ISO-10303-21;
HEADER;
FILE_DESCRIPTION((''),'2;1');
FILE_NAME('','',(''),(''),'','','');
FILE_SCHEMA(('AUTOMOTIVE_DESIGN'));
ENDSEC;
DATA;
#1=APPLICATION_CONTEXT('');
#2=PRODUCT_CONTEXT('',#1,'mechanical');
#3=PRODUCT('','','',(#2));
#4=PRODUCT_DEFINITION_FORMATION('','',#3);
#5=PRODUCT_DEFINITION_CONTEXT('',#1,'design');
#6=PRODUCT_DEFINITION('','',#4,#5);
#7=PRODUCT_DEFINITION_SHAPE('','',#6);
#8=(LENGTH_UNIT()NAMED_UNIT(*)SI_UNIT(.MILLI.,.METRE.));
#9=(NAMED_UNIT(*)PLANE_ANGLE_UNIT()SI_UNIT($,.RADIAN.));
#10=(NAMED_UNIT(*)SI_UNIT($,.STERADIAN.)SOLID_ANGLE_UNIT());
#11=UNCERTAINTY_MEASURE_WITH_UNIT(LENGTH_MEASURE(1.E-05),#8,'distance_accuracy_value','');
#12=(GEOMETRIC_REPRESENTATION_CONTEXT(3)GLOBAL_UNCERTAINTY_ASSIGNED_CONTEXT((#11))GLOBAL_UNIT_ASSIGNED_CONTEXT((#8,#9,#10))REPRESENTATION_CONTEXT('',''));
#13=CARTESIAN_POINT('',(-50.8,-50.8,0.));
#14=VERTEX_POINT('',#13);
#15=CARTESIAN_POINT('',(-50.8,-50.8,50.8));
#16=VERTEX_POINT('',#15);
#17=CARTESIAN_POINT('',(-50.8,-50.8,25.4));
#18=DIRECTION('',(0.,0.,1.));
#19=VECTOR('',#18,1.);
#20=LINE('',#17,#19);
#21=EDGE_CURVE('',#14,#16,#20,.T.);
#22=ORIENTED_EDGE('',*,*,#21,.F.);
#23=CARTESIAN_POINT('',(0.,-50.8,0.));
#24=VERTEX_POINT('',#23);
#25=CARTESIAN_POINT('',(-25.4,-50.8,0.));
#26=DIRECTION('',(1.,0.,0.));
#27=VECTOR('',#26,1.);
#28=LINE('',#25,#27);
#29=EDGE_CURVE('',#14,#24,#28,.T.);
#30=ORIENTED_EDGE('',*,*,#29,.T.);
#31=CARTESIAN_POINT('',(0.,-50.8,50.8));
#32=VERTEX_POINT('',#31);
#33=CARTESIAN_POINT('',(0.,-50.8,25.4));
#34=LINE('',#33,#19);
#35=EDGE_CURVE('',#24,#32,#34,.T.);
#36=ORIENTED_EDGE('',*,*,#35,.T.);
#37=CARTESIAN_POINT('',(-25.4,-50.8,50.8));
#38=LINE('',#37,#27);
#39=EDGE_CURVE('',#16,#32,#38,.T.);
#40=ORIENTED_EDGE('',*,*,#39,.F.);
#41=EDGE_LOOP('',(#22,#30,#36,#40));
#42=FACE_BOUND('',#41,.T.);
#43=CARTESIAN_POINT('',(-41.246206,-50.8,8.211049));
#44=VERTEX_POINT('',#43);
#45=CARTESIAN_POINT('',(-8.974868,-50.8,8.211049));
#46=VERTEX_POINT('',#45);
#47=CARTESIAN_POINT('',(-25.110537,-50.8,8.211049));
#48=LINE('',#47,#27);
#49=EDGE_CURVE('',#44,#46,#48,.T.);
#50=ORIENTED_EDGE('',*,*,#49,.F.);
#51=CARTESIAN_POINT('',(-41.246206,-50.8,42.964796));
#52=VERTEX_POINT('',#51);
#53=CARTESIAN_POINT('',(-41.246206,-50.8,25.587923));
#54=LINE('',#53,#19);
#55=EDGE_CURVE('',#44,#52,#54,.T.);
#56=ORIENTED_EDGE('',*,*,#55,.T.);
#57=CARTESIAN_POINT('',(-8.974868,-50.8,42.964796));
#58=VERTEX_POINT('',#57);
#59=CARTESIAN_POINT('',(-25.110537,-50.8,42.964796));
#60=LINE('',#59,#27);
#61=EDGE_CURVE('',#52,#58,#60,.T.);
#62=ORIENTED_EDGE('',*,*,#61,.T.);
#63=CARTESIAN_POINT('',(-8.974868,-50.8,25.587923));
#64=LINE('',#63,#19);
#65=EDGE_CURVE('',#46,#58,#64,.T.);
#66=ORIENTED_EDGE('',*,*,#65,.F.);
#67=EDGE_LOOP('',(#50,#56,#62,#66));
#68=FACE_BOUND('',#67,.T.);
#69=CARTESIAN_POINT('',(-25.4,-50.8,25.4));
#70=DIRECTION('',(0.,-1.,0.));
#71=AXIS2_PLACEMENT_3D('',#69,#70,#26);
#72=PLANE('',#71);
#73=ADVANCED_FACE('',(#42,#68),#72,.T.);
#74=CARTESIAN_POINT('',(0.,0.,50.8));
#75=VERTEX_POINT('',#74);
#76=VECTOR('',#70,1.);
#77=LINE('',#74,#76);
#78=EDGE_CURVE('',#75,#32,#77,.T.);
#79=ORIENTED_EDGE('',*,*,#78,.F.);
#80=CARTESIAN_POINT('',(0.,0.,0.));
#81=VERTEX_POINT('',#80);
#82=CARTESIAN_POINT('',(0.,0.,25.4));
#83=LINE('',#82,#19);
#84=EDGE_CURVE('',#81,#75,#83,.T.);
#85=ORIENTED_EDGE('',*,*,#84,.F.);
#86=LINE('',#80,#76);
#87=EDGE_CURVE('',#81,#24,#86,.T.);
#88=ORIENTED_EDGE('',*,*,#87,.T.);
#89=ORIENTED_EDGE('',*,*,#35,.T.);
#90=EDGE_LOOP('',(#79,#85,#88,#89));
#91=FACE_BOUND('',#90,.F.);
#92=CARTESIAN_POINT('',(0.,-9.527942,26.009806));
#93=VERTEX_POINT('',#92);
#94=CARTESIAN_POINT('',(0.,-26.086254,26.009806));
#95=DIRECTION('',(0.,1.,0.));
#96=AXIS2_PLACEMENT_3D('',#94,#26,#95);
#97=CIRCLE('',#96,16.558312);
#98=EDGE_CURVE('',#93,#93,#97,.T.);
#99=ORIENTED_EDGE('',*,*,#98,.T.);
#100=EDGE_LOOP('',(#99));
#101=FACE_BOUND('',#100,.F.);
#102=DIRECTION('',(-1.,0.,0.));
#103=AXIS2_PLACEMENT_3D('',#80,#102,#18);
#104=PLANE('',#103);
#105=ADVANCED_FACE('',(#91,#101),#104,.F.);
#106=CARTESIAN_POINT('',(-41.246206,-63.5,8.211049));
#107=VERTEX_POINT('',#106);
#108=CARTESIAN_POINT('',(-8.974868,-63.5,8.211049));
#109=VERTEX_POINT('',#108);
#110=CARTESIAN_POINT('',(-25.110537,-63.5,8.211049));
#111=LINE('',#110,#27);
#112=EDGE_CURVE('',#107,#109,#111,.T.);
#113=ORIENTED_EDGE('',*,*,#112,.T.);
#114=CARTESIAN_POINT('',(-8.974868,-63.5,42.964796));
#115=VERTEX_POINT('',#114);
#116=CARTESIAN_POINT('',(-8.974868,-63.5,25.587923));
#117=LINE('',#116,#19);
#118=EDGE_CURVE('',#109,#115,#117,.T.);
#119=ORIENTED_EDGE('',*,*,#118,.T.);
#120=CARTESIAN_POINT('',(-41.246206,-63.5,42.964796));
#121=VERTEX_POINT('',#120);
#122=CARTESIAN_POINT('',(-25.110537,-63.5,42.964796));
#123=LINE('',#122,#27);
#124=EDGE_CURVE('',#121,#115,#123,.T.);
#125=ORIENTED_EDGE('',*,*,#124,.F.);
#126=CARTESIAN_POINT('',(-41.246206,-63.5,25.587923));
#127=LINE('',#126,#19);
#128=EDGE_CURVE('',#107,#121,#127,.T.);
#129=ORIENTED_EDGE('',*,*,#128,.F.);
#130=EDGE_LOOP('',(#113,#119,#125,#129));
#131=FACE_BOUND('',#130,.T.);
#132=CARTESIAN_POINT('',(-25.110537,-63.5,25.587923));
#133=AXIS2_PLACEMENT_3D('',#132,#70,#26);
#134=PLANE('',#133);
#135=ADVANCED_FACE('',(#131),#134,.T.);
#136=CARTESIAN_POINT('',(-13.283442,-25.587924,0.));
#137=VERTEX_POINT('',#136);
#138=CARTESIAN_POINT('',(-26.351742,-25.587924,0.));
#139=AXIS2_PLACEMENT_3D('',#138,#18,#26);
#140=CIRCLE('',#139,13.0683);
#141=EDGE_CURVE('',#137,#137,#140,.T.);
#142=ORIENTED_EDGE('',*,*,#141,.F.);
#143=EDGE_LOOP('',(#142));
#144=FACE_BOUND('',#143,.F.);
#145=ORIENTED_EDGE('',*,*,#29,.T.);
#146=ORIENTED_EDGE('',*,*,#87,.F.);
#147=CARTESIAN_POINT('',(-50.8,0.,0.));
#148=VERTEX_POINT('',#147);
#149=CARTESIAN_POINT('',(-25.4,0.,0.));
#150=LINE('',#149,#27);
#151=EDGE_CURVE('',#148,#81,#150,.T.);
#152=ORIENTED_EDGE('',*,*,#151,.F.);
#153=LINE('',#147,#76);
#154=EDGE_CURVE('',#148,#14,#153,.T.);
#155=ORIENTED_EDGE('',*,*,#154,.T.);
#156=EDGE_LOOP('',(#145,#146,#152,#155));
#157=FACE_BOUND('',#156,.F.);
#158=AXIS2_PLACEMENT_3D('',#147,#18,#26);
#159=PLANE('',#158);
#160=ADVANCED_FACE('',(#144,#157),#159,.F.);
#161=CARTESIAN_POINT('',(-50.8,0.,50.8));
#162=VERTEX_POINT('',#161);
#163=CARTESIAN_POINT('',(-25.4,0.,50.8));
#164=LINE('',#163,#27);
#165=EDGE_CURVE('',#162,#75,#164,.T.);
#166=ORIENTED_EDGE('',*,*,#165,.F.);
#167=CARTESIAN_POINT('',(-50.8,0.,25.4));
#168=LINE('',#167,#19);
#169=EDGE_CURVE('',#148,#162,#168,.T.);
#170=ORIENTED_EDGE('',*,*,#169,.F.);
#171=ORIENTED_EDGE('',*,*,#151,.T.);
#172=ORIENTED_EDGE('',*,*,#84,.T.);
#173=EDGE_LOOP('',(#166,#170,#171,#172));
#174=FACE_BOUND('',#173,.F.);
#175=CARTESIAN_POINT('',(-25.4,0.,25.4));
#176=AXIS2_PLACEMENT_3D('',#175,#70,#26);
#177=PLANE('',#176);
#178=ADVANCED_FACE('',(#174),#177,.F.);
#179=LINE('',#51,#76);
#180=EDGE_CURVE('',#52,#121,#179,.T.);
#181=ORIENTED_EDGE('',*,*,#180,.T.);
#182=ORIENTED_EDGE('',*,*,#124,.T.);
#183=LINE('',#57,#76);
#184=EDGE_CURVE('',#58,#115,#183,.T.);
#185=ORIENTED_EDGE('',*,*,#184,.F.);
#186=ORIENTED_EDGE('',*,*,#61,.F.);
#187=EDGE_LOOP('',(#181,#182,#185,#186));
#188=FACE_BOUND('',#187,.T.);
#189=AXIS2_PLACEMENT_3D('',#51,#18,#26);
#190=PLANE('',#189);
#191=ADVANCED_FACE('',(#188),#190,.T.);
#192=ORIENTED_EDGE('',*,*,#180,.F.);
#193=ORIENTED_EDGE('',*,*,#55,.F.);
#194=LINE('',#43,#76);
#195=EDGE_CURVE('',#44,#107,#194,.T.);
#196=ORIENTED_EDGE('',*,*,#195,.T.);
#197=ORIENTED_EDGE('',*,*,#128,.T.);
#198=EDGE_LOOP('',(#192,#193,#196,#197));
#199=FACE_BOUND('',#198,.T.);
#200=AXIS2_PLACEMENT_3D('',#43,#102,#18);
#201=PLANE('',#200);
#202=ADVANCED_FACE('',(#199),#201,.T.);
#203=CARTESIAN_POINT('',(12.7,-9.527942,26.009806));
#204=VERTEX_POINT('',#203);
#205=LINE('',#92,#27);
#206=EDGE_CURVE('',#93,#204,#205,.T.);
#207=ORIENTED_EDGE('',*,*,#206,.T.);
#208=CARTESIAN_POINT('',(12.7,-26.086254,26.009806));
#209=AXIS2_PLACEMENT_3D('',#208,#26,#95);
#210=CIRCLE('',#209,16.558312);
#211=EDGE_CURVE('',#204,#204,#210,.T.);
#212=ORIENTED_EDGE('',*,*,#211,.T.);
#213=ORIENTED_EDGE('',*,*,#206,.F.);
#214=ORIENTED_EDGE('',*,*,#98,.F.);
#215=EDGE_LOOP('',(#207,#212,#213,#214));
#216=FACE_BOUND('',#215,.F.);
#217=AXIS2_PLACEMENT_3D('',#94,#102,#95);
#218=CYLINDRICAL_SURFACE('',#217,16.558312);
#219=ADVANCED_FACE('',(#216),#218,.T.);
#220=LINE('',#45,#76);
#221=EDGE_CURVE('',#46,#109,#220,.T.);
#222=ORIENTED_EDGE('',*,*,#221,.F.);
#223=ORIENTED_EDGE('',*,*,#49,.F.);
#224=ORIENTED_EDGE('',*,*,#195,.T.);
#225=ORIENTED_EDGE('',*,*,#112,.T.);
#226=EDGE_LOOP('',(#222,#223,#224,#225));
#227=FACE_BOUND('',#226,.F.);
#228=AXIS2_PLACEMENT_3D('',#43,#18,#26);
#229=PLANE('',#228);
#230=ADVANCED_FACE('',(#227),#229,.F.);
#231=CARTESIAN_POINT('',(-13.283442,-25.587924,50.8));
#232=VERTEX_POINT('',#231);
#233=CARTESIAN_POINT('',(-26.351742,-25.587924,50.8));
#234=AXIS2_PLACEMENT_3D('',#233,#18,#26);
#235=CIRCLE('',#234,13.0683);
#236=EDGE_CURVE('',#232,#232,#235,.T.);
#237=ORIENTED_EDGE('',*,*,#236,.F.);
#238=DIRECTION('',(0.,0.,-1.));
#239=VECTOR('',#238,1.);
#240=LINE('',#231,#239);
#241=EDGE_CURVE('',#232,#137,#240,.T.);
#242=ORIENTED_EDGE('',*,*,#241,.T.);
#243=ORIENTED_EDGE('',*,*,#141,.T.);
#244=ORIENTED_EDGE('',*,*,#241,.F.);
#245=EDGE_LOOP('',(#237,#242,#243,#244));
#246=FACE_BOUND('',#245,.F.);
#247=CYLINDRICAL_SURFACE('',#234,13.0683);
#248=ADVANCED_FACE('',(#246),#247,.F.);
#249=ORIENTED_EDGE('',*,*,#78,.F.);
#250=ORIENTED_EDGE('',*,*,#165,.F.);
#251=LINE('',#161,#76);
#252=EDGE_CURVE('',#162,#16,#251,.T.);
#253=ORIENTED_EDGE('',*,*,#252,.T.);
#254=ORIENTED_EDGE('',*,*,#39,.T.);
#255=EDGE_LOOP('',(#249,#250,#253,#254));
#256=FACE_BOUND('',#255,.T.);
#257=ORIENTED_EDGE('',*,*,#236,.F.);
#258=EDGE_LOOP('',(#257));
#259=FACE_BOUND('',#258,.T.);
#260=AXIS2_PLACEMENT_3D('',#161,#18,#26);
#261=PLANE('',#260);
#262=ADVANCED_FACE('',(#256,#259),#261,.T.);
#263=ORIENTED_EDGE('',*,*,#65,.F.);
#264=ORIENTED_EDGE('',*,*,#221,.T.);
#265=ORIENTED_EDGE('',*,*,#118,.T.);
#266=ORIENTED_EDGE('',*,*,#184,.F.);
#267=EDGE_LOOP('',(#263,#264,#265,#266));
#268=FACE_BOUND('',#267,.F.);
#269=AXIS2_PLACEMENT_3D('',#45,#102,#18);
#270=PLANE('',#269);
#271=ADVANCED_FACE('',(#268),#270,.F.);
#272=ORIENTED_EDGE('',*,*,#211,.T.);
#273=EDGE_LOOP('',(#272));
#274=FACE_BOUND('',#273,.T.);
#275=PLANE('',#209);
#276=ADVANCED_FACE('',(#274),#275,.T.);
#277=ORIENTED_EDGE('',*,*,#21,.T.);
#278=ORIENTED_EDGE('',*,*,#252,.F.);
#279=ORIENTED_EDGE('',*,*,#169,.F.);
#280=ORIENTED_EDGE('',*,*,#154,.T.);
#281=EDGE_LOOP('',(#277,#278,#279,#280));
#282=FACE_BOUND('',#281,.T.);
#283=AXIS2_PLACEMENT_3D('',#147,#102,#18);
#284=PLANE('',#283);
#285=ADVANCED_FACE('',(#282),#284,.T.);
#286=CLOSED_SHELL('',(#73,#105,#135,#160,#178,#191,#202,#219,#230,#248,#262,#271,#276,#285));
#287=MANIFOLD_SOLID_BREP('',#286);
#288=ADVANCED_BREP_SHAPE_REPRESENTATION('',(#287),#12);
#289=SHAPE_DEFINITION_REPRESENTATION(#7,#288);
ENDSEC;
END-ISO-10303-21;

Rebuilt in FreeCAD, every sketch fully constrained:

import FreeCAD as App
import Part
import Sketcher
Q = App.Units.Quantity


def add_polygon(sketch, points):
    """Adds a closed chain of lines whose ends are joined by coincident constraints."""
    first, n = sketch.GeometryCount, len(points)
    for a, b in zip(points, points[1:] + points[:1]):
        sketch.addGeometry(Part.LineSegment(App.Vector(*a, 0), App.Vector(*b, 0)), False)
    for i in range(n):
        sketch.addConstraint(Sketcher.Constraint("Coincident", first + i, 2, first + (i + 1) % n, 1))

doc = App.newDocument("Part")
body = doc.addObject("PartDesign::Body", "Body")

sketch1 = body.newObject("Sketcher::SketchObject", "Sketch")
sketch1.AttachmentSupport = (doc.getObject("XZ_Plane"), [""])
sketch1.MapMode = "FlatFace"
add_polygon(sketch1, [(-51, 51), (-51, 0), (0, 0), (0, 51)])
sketch1.addConstraint([
    Sketcher.Constraint("Vertical", 0),
    Sketcher.Constraint("Horizontal", 1),
    Sketcher.Constraint("Vertical", 2),
    Sketcher.Constraint("Horizontal", 3),
    Sketcher.Constraint("Coincident", 1, 2, -1, 1),
    Sketcher.Constraint("Equal", 3, 0),
    Sketcher.Constraint("DistanceX", 1, 1, 1, 2, Q("2 in")),
])
pad1 = body.newObject("PartDesign::Pad", "Pad")
pad1.Profile = sketch1
pad1.Length = Q("2 in")

sketch2 = body.newObject("Sketcher::SketchObject", "Sketch001")
sketch2.AttachmentSupport = (doc.getObject("XY_Plane"), [""])
sketch2.MapMode = "FlatFace"
sketch2.AttachmentOffset = App.Placement(App.Vector(0, 0, 2 * 25.4), App.Rotation())
sketch2.addGeometry(Part.Circle(App.Vector(-26, -26, 0), App.Vector(0, 0, 1), 13), False)
sketch2.addConstraint([
    Sketcher.Constraint("Diameter", 0, Q("1.029 in")),
    Sketcher.Constraint("DistanceX", 0, 3, -1, 1, Q("26.351742 mm")),
    Sketcher.Constraint("DistanceY", 0, 3, -1, 1, Q("25.587924 mm")),
])
pocket1 = body.newObject("PartDesign::Pocket", "Pocket")
pocket1.Profile = sketch2
pocket1.Length = Q("2 in")

sketch3 = body.newObject("Sketcher::SketchObject", "Sketch002")
sketch3.AttachmentSupport = (doc.getObject("YZ_Plane"), [""])
sketch3.MapMode = "FlatFace"
sketch3.addGeometry(Part.Circle(App.Vector(-26, 26, 0), App.Vector(0, 0, 1), 17), False)
sketch3.addConstraint([
    Sketcher.Constraint("Diameter", 0, Q("33.116624 mm")),
    Sketcher.Constraint("DistanceX", 0, 3, -1, 1, Q("26.086254 mm")),
    Sketcher.Constraint("DistanceY", -1, 1, 0, 3, Q("26.009806 mm")),
])
pad2 = body.newObject("PartDesign::Pad", "Pad001")
pad2.Profile = sketch3
pad2.Length = Q("0.5 in")

sketch4 = body.newObject("Sketcher::SketchObject", "Sketch003")
sketch4.AttachmentSupport = (doc.getObject("XZ_Plane"), [""])
sketch4.MapMode = "FlatFace"
sketch4.AttachmentOffset = App.Placement(App.Vector(0, 0, 2 * 25.4), App.Rotation())
add_polygon(sketch4, [(-41, 43), (-41, 8), (-9, 8), (-9, 43)])
sketch4.addConstraint([
    Sketcher.Constraint("Vertical", 0),
    Sketcher.Constraint("Horizontal", 1),
    Sketcher.Constraint("Vertical", 2),
    Sketcher.Constraint("Horizontal", 3),
    Sketcher.Constraint("DistanceX", 1, 1, 1, 2, Q("32.271338 mm")),
    Sketcher.Constraint("DistanceY", 0, 2, 0, 1, Q("34.753747 mm")),
    Sketcher.Constraint("DistanceY", -1, 1, 0, 2, Q("8.211049 mm")),
    Sketcher.Constraint("DistanceX", 1, 2, -1, 1, Q("8.974868 mm")),
])
pad3 = body.newObject("PartDesign::Pad", "Pad002")
pad3.Profile = sketch4
pad3.Length = Q("0.5 in")

doc.recompute()
